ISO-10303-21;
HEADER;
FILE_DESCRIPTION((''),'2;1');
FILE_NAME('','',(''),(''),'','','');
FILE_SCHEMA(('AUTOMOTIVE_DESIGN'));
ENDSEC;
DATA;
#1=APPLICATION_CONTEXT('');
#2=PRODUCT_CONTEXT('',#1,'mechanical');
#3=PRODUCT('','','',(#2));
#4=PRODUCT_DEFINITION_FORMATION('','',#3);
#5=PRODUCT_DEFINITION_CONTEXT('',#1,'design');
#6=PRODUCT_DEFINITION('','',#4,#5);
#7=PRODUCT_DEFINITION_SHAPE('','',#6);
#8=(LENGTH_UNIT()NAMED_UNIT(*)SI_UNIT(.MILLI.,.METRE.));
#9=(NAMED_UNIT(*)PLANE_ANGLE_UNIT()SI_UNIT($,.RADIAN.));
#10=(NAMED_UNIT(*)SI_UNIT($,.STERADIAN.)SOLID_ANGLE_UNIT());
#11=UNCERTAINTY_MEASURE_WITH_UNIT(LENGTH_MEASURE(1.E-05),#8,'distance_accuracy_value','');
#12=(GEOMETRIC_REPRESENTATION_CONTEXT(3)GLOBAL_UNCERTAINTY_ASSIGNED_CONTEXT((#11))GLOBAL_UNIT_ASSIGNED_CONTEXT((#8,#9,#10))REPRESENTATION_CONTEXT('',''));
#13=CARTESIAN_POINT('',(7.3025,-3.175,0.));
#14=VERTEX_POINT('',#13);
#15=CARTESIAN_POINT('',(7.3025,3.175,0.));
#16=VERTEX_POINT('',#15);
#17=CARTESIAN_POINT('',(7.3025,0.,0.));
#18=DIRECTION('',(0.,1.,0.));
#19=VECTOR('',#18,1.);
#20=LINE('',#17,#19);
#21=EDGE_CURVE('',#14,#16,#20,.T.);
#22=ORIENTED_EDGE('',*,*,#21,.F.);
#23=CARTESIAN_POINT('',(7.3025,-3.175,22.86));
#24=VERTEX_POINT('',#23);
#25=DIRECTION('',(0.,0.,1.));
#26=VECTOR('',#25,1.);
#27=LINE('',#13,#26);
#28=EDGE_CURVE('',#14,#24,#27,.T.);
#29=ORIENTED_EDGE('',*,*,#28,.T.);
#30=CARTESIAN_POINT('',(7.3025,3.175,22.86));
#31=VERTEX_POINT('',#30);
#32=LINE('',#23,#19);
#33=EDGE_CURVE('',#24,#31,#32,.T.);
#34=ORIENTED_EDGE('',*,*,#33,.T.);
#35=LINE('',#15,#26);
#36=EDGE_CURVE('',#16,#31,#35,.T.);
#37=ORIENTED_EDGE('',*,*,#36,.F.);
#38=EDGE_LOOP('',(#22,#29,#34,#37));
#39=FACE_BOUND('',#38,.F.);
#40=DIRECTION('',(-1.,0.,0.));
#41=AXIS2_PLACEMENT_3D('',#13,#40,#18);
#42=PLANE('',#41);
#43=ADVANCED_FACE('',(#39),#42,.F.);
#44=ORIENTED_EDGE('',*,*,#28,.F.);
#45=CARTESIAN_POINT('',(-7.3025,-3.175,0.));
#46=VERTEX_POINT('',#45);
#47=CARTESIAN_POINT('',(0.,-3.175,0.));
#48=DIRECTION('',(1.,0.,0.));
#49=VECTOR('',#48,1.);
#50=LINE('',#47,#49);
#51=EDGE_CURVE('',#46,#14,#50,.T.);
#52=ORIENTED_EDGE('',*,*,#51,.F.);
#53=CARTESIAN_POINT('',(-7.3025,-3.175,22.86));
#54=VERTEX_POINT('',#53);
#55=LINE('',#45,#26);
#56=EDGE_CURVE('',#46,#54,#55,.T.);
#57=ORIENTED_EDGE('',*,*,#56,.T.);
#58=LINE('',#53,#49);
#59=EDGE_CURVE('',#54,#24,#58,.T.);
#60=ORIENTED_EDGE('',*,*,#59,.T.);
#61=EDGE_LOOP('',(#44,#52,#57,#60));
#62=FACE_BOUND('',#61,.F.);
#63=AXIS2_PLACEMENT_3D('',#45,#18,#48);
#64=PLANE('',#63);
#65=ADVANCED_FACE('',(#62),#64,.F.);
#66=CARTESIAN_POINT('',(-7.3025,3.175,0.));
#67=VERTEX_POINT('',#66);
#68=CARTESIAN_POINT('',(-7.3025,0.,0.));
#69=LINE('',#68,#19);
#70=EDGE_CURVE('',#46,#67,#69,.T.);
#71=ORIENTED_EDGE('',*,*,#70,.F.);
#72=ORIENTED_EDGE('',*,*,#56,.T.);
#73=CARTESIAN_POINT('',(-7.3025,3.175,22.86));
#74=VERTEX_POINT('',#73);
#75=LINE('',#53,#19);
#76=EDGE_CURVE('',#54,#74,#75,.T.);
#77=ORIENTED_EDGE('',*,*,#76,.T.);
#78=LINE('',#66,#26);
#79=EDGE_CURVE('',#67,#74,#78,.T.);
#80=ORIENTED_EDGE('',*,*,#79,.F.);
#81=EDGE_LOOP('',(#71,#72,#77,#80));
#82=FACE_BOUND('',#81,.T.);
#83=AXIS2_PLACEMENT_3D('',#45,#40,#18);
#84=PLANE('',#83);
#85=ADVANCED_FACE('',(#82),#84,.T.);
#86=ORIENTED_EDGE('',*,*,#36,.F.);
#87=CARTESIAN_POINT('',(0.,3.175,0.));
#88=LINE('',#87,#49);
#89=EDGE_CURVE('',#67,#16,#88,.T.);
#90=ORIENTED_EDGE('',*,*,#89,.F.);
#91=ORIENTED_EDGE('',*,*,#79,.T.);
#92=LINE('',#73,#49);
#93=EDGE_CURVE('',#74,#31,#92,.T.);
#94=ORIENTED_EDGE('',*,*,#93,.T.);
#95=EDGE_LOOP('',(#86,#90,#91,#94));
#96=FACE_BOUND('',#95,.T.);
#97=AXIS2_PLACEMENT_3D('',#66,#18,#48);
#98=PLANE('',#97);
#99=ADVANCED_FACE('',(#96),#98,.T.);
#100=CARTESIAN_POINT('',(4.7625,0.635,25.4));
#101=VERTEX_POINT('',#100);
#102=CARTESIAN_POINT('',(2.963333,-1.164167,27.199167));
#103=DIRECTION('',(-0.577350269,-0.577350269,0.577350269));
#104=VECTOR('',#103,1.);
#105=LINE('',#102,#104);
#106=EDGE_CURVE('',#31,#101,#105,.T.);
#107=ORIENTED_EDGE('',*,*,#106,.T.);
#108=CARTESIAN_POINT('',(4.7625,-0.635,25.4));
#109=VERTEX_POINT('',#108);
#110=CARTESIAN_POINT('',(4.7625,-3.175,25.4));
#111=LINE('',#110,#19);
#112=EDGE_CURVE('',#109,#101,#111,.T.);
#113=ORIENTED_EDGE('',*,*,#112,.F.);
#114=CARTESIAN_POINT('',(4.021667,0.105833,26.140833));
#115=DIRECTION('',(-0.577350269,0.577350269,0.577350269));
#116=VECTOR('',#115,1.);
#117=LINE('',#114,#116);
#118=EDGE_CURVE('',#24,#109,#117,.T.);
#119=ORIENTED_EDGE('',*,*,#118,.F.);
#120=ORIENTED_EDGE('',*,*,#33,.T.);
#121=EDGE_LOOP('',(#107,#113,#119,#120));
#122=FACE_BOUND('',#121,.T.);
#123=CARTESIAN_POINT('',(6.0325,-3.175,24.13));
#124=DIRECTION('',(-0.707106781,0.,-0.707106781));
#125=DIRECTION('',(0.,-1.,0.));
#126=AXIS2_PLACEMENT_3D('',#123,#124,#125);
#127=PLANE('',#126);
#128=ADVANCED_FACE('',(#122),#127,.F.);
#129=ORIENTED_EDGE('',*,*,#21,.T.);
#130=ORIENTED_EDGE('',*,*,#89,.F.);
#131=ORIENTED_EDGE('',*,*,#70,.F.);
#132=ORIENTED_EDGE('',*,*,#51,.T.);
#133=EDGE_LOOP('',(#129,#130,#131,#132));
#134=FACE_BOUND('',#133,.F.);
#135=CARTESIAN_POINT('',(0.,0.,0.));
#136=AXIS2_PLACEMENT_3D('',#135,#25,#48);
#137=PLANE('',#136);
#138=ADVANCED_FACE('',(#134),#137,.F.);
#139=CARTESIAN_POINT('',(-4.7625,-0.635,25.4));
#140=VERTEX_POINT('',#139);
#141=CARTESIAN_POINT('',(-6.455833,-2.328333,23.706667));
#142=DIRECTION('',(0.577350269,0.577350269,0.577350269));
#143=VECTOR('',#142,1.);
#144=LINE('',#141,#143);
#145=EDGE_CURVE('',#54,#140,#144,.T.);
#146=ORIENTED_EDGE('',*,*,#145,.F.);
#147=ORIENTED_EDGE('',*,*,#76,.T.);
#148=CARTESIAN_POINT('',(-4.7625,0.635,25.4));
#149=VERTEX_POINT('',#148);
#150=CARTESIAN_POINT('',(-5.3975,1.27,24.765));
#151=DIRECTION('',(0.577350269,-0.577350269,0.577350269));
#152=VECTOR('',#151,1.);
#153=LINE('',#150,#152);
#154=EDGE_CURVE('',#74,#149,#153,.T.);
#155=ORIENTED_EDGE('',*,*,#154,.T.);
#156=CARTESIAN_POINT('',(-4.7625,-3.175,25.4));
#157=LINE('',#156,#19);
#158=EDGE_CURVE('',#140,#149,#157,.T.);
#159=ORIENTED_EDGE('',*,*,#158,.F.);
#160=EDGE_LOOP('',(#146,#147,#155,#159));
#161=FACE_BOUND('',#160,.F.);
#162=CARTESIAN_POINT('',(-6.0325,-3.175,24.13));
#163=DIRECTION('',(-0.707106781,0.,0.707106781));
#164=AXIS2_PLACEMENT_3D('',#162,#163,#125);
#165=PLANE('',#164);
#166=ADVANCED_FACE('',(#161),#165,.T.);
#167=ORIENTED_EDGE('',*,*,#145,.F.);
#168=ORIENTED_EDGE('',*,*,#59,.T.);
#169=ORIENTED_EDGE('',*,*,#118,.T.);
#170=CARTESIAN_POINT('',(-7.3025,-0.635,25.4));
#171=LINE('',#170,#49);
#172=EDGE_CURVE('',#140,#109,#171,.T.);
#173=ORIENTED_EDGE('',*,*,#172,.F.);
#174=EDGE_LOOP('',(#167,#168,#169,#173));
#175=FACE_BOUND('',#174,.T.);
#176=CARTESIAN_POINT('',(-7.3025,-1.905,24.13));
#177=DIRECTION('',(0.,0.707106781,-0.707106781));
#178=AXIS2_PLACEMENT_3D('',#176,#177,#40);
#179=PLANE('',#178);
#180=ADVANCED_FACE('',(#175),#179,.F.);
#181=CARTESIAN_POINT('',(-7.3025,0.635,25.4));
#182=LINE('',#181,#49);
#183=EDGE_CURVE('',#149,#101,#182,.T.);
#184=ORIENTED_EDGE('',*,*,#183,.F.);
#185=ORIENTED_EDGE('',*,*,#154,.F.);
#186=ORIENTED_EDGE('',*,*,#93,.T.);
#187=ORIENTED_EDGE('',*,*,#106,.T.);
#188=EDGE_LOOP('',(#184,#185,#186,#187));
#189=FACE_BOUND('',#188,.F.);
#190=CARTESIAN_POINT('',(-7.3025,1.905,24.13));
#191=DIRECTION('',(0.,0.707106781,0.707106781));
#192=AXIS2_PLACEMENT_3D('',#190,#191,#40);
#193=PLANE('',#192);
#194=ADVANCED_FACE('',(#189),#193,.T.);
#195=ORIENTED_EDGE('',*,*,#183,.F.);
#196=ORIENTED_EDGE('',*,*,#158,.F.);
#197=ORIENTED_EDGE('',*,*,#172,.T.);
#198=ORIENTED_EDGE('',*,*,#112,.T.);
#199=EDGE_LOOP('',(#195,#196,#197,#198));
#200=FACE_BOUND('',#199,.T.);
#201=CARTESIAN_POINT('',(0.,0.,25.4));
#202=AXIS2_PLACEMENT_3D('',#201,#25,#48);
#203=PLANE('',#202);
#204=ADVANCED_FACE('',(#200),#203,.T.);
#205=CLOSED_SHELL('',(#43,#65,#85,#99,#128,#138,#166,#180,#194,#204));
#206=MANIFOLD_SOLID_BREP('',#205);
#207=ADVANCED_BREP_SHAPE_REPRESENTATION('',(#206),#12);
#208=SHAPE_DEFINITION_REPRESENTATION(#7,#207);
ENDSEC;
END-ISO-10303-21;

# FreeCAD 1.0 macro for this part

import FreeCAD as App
import Part
import Sketcher
Q = App.Units.Quantity


def edges_at(feature, points):
    """Names of the edges that pass closest to the given points."""
    edges = feature.Shape.Edges
    near = lambda p: min(range(len(edges)), key=lambda i: edges[i].distToShape(Part.Vertex(*p))[0])
    return sorted({f"Edge{near(p) + 1}" for p in points})

doc = App.newDocument("Part")
body = doc.addObject("PartDesign::Body", "Body")

# Sketch on XY plane
sketch1 = body.newObject("Sketcher::SketchObject", "Sketch")
sketch1.AttachmentSupport = (doc.getObject("XY_Plane"), [""])
sketch1.MapMode = "FlatFace"
sketch1.addGeometry(Part.LineSegment(App.Vector(-7, 3, 0), App.Vector(-7, -3, 0)), False)
sketch1.addGeometry(Part.LineSegment(App.Vector(-7, -3, 0), App.Vector(7, -3, 0)), False)
sketch1.addGeometry(Part.LineSegment(App.Vector(7, -3, 0), App.Vector(7, 3, 0)), False)
sketch1.addGeometry(Part.LineSegment(App.Vector(7, 3, 0), App.Vector(-7, 3, 0)), False)
sketch1.addConstraint(Sketcher.Constraint("Coincident", 0, 2, 1, 1))
sketch1.addConstraint(Sketcher.Constraint("Coincident", 1, 2, 2, 1))
sketch1.addConstraint(Sketcher.Constraint("Coincident", 2, 2, 3, 1))
sketch1.addConstraint(Sketcher.Constraint("Coincident", 3, 2, 0, 1))
sketch1.addConstraint(Sketcher.Constraint("Vertical", 0))
sketch1.addConstraint(Sketcher.Constraint("Horizontal", 1))
sketch1.addConstraint(Sketcher.Constraint("Vertical", 2))
sketch1.addConstraint(Sketcher.Constraint("Horizontal", 3))
sketch1.addConstraint(Sketcher.Constraint("Symmetric", 0, 2, 2, 2, -1, 1))
sketch1.addConstraint(Sketcher.Constraint("DistanceY", 0, 2, 0, 1, Q("0.25 in")))
sketch1.addConstraint(Sketcher.Constraint("DistanceX", 1, 1, 1, 2, Q("0.575 in")))
pad1 = body.newObject("PartDesign::Pad", "Pad")
pad1.Profile = sketch1
pad1.Length = Q("1 in")
doc.recompute()

chamfer = body.newObject("PartDesign::Chamfer", "Chamfer")
chamfer.Base = (pad1, edges_at(pad1, [
    (0, -3.175, 25.4),
    (0, 3.175, 25.4),
    (-7.303, 0, 25.4),
    (7.303, 0, 25.4),
]))
chamfer.Size = Q("0.1 in")

doc.recompute()
